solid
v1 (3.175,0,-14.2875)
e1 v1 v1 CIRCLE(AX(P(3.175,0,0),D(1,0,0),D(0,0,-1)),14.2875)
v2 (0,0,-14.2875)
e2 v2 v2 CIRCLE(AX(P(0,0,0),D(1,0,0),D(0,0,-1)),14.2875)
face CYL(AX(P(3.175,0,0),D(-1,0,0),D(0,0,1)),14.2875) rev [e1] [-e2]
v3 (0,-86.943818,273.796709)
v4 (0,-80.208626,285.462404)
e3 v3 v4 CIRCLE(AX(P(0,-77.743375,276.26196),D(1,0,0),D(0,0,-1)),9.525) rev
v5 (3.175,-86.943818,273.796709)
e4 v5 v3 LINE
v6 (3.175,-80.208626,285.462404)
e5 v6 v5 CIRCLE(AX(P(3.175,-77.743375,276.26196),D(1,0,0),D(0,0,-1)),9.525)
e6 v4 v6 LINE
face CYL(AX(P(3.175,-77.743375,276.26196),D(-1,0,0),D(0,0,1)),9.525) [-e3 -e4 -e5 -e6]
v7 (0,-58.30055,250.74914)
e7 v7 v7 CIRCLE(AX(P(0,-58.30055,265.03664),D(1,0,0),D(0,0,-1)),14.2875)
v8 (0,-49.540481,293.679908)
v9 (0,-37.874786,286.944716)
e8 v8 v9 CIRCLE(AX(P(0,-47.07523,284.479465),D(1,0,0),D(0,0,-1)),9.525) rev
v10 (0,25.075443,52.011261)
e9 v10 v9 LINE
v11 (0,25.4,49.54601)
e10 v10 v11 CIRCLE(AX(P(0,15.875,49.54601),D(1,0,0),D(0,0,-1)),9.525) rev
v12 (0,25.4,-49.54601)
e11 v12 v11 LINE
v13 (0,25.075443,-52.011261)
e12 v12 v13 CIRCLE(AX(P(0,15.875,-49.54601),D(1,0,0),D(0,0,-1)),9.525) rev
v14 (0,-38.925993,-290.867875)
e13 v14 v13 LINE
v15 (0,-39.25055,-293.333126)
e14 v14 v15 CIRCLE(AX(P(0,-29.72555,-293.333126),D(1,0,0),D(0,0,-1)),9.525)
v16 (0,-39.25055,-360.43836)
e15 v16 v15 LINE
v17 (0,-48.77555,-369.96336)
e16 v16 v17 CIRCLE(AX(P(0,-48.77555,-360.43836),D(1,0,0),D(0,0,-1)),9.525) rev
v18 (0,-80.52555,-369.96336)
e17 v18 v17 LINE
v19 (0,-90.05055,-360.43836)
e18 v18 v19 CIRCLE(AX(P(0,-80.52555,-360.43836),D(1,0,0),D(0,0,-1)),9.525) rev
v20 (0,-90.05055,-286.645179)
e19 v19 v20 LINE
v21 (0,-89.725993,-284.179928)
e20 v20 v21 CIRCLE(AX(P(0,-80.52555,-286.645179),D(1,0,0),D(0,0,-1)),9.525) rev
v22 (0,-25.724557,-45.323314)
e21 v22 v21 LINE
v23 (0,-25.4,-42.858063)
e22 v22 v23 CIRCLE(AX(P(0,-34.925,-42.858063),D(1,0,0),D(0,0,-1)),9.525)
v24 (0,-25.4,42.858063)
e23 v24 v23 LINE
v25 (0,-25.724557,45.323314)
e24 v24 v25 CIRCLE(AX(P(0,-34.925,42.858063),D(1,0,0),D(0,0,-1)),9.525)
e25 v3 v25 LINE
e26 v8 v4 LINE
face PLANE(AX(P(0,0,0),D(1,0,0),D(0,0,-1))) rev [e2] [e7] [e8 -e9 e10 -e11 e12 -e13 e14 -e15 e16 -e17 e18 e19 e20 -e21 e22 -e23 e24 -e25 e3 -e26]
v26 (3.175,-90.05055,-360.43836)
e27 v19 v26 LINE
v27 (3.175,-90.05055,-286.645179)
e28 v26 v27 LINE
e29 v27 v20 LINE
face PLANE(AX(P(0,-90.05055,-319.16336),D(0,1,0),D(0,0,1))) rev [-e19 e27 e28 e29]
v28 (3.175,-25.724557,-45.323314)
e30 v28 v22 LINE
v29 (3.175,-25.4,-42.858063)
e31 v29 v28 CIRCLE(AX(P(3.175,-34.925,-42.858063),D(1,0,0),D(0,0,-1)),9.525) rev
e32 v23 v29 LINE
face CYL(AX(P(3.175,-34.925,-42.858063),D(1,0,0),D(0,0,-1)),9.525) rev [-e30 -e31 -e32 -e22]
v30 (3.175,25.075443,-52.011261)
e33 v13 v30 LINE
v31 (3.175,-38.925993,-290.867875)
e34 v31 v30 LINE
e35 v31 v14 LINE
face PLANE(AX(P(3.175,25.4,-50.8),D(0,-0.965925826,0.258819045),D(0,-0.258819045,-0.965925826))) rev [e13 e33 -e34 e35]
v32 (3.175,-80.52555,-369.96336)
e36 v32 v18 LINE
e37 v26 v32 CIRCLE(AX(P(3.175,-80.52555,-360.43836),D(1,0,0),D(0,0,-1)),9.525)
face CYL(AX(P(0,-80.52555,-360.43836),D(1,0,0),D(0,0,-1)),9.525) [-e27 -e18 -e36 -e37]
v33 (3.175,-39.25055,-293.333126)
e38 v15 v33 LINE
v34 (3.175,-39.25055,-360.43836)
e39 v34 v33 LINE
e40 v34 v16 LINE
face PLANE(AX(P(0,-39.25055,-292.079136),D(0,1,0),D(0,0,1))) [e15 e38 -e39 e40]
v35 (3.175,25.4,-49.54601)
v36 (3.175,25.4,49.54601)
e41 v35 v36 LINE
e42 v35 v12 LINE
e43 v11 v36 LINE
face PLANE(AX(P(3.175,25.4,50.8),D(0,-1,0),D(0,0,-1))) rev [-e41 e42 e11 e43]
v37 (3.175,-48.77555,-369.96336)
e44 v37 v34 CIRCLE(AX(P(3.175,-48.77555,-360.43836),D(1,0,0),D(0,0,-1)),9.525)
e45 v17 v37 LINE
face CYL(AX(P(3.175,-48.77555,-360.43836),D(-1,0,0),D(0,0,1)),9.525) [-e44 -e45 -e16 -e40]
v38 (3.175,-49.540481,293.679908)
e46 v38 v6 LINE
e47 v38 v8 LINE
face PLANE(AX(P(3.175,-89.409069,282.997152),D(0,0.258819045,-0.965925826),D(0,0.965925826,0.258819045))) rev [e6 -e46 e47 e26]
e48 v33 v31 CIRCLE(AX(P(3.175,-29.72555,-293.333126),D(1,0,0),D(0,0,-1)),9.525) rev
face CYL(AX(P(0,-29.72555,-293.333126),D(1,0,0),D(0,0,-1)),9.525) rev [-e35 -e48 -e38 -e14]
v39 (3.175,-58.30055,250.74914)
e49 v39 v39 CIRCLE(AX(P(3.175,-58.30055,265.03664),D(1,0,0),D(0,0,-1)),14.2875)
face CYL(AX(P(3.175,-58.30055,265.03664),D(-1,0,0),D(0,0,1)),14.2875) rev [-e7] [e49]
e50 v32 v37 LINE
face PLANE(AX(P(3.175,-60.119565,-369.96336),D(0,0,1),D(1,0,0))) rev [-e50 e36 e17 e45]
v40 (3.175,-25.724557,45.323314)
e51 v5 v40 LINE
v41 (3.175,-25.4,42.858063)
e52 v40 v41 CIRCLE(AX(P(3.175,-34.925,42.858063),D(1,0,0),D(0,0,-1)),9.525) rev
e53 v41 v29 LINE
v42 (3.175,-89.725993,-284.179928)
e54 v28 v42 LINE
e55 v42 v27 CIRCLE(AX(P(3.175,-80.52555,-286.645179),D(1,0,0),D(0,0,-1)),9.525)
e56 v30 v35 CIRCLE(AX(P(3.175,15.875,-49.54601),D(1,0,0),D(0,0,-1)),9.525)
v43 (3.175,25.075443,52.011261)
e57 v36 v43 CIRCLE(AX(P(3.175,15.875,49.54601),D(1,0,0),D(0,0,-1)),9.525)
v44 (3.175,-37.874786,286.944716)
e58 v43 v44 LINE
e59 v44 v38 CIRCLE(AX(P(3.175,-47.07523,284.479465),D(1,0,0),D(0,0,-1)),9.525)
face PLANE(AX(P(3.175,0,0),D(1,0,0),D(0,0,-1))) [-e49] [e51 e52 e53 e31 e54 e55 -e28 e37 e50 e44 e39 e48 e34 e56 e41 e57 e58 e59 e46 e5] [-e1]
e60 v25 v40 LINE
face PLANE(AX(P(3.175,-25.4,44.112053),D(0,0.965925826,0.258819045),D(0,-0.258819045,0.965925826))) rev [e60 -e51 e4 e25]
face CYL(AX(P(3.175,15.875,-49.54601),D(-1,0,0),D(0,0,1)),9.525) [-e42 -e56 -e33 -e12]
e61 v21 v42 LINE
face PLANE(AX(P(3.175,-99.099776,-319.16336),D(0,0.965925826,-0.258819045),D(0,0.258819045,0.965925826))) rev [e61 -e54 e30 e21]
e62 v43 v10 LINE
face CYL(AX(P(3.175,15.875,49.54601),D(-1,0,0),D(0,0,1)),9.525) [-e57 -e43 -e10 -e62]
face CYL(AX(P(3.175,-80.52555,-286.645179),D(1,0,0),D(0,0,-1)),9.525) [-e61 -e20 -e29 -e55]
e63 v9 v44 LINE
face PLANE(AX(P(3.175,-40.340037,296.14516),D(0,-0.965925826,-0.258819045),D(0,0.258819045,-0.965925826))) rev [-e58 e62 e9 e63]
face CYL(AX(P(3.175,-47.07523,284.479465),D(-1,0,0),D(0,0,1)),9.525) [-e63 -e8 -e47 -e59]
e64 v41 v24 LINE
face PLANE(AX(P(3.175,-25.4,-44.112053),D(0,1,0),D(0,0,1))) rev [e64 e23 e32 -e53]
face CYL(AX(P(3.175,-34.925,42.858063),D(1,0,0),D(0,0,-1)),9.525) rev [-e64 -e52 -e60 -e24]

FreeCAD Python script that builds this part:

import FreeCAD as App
import Part
import Sketcher

V = App.Vector
Q = App.Units.Quantity


def edges_at(feature, points):
    """Names of the edges that pass closest to the given points."""
    edges = feature.Shape.Edges
    near = lambda p: min(range(len(edges)), key=lambda i: edges[i].distToShape(Part.Vertex(*p))[0])
    return sorted({f"Edge{near(p) + 1}" for p in points})

doc = App.newDocument("Part")
body = doc.addObject("PartDesign::Body", "Body")

sketch1 = body.newObject("Sketcher::SketchObject", "Sketch")
sketch1.AttachmentSupport = (doc.getObject("YZ_Plane"), [""])
sketch1.MapMode = "FlatFace"
sketch1.addGeometry(Part.LineSegment(V(25, -51, 0), V(25, 51, 0)), False)
sketch1.addGeometry(Part.LineSegment(V(25, 51, 0), V(-40, 296, 0)), False)
sketch1.addGeometry(Part.LineSegment(V(-40, 296, 0), V(-89, 283, 0)), False)
sketch1.addGeometry(Part.LineSegment(V(-89, 283, 0), V(-25, 44, 0)), False)
sketch1.addGeometry(Part.LineSegment(V(-25, 44, 0), V(-25, -44, 0)), False)
sketch1.addGeometry(Part.LineSegment(V(-25, -44, 0), V(-99, -319, 0)), False)
sketch1.addGeometry(Part.LineSegment(V(-99, -319, 0), V(-338, -319, 0)), False)
sketch1.addGeometry(Part.LineSegment(V(-338, -319, 0), V(-338, -370, 0)), False)
sketch1.addGeometry(Part.LineSegment(V(-338, -370, 0), V(-60, -370, 0)), False)
sketch1.addGeometry(Part.LineSegment(V(-60, -370, 0), V(25, -51, 0)), False)
sketch1.addGeometry(Part.Circle(V(-58, 265, 0), V(0, 0, 1), 14), False)
sketch1.addGeometry(Part.Circle(V(0, 0, 0), V(0, 0, 1), 14), False)
sketch1.addConstraint(Sketcher.Constraint("Coincident", 0, 2, 1, 1))
sketch1.addConstraint(Sketcher.Constraint("Coincident", 1, 2, 2, 1))
sketch1.addConstraint(Sketcher.Constraint("Coincident", 2, 2, 3, 1))
sketch1.addConstraint(Sketcher.Constraint("Coincident", 3, 2, 4, 1))
sketch1.addConstraint(Sketcher.Constraint("Coincident", 4, 2, 5, 1))
sketch1.addConstraint(Sketcher.Constraint("Coincident", 5, 2, 6, 1))
sketch1.addConstraint(Sketcher.Constraint("Coincident", 6, 2, 7, 1))
sketch1.addConstraint(Sketcher.Constraint("Coincident", 7, 2, 8, 1))
sketch1.addConstraint(Sketcher.Constraint("Coincident", 8, 2, 9, 1))
sketch1.addConstraint(Sketcher.Constraint("Coincident", 9, 2, 0, 1))
sketch1.addConstraint(Sketcher.Constraint("Vertical", 0))
sketch1.addConstraint(Sketcher.Constraint("Vertical", 4))
sketch1.addConstraint(Sketcher.Constraint("Horizontal", 6))
sketch1.addConstraint(Sketcher.Constraint("Vertical", 7))
sketch1.addConstraint(Sketcher.Constraint("Horizontal", 8))
sketch1.addConstraint(Sketcher.Constraint("Coincident", 11, 3, -1, 1))
sketch1.addConstraint(Sketcher.Constraint("Equal", 10, 11))
sketch1.addConstraint(Sketcher.Constraint("Perpendicular", 1, 2))
sketch1.addConstraint(Sketcher.Constraint("Perpendicular", 2, 3))
sketch1.addConstraint(Sketcher.Constraint("Parallel", 5, 9))
sketch1.addConstraint(Sketcher.Constraint("DistanceY", 0, 1, 0, 2, Q("4 in")))
sketch1.addConstraint(Sketcher.Constraint("DistanceY", 7, 2, 7, 1, Q("2 in")))
sketch1.addConstraint(Sketcher.Constraint("Distance", 1, Q("10 in")))
sketch1.addConstraint(Sketcher.Constraint("Distance", 2, Q("2 in")))
sketch1.addConstraint(Sketcher.Constraint("Diameter", 10, Q("1.125 in")))
sketch1.addConstraint(Sketcher.Constraint("DistanceX", -1, 1, 0, 2, Q("1 in")))
sketch1.addConstraint(Sketcher.Constraint("DistanceY", -1, 1, 0, 2, Q("2 in")))
sketch1.addConstraint(Sketcher.Constraint("DistanceX", 3, 2, -1, 1, Q("1 in")))
sketch1.addConstraint(Sketcher.Constraint("Angle", 1, Q("105 deg")))
sketch1.addConstraint(Sketcher.Constraint("Angle", 5, Q("-105 deg")))
sketch1.addConstraint(Sketcher.Constraint("DistanceY", 5, 2, 10, 3, Q("23 in")))
sketch1.addConstraint(Sketcher.Constraint("DistanceX", 6, 2, 6, 1, Q("238.600774 mm")))
sketch1.addConstraint(Sketcher.Constraint("DistanceX", 8, 1, 8, 2, Q("277.580985 mm")))
sketch1.addConstraint(Sketcher.Constraint("DistanceX", 10, 3, -1, 1, Q("58.30055 mm")))
sketch1.addConstraint(Sketcher.Constraint("DistanceY", -1, 1, 10, 3, Q("265.03664 mm")))
pad1 = body.newObject("PartDesign::Pad", "Pad")
pad1.Profile = sketch1
pad1.Length = Q("0.125 in")

sketch2 = body.newObject("Sketcher::SketchObject", "Sketch001")
sketch2.AttachmentSupport = (doc.getObject("YZ_Plane"), [""])
sketch2.MapMode = "FlatFace"
sketch2.AttachmentOffset = App.Placement(V(0, 0, 0.125 * 25.4), App.Rotation())
sketch2.addGeometry(Part.Circle(V(-312, -345, 0), V(0, 0, 1), 13), False)
sketch2.addConstraint(Sketcher.Constraint("Diameter", 0, Q("1 in")))
sketch2.addConstraint(Sketcher.Constraint("DistanceX", 0, 3, -1, 1, Q("312.30055 mm")))
sketch2.addConstraint(Sketcher.Constraint("DistanceY", 0, 3, -1, 1, Q("344.56336 mm")))
pocket1 = body.newObject("PartDesign::Pocket", "Pocket")
pocket1.Profile = sketch2
pocket1.Type = "ThroughAll"

sketch3 = body.newObject("Sketcher::SketchObject", "Sketch002")
sketch3.AttachmentSupport = (doc.getObject("YZ_Plane"), [""])
sketch3.MapMode = "FlatFace"
sketch3.AttachmentOffset = App.Placement(V(0, 0, 0.125 * 25.4), App.Rotation())
sketch3.addGeometry(Part.LineSegment(V(-90, -319, 0), V(-338, -319, 0)), False)
sketch3.addGeometry(Part.LineSegment(V(-338, -319, 0), V(-338, -370, 0)), False)
sketch3.addGeometry(Part.LineSegment(V(-338, -370, 0), V(-90, -370, 0)), False)
sketch3.addGeometry(Part.LineSegment(V(-90, -370, 0), V(-90, -319, 0)), False)
sketch3.addConstraint(Sketcher.Constraint("Coincident", 0, 2, 1, 1))
sketch3.addConstraint(Sketcher.Constraint("Coincident", 1, 2, 2, 1))
sketch3.addConstraint(Sketcher.Constraint("Coincident", 2, 2, 3, 1))
sketch3.addConstraint(Sketcher.Constraint("Coincident", 3, 2, 0, 1))
sketch3.addConstraint(Sketcher.Constraint("Horizontal", 0))
sketch3.addConstraint(Sketcher.Constraint("Vertical", 1))
sketch3.addConstraint(Sketcher.Constraint("Horizontal", 2))
sketch3.addConstraint(Sketcher.Constraint("Vertical", 3))
sketch3.addConstraint(Sketcher.Constraint("DistanceY", 1, 2, 1, 1, Q("2 in")))
sketch3.addConstraint(Sketcher.Constraint("DistanceX", 0, 2, 0, 1, Q("9.75 in")))
sketch3.addConstraint(Sketcher.Constraint("DistanceX", 0, 2, -1, 1, Q("337.70055 mm")))
sketch3.addConstraint(Sketcher.Constraint("DistanceY", 0, 2, -1, 1, Q("319.16336 mm")))
pocket2 = body.newObject("PartDesign::Pocket", "Pocket001")
pocket2.Profile = sketch3
pocket2.Type = "ThroughAll"

sketch4 = body.newObject("Sketcher::SketchObject", "Sketch003")
sketch4.AttachmentSupport = (doc.getObject("YZ_Plane"), [""])
sketch4.MapMode = "FlatFace"
sketch4.AttachmentOffset = App.Placement(V(0, 0, 0.125 * 25.4), App.Rotation())
sketch4.addGeometry(Part.LineSegment(V(-90, -243, 0), V(-115, -243, 0)), False)
sketch4.addGeometry(Part.LineSegment(V(-115, -243, 0), V(-115, -370, 0)), False)
sketch4.addGeometry(Part.LineSegment(V(-115, -370, 0), V(-90, -370, 0)), False)
sketch4.addGeometry(Part.LineSegment(V(-90, -370, 0), V(-90, -243, 0)), False)
sketch4.addConstraint(Sketcher.Constraint("Coincident", 0, 2, 1, 1))
sketch4.addConstraint(Sketcher.Constraint("Coincident", 1, 2, 2, 1))
sketch4.addConstraint(Sketcher.Constraint("Coincident", 2, 2, 3, 1))
sketch4.addConstraint(Sketcher.Constraint("Coincident", 3, 2, 0, 1))
sketch4.addConstraint(Sketcher.Constraint("Horizontal", 0))
sketch4.addConstraint(Sketcher.Constraint("Vertical", 1))
sketch4.addConstraint(Sketcher.Constraint("Horizontal", 2))
sketch4.addConstraint(Sketcher.Constraint("Vertical", 3))
sketch4.addConstraint(Sketcher.Constraint("DistanceX", 0, 2, 0, 1, Q("1 in")))
sketch4.addConstraint(Sketcher.Constraint("DistanceY", 1, 2, 1, 1, Q("5 in")))
sketch4.addConstraint(Sketcher.Constraint("DistanceX", 0, 2, -1, 1, Q("115.45055 mm")))
sketch4.addConstraint(Sketcher.Constraint("DistanceY", 0, 2, -1, 1, Q("242.96336 mm")))
pocket3 = body.newObject("PartDesign::Pocket", "Pocket002")
pocket3.Profile = sketch4
pocket3.Type = "ThroughAll"

sketch5 = body.newObject("Sketcher::SketchObject", "Sketch004")
sketch5.AttachmentSupport = (doc.getObject("YZ_Plane"), [""])
sketch5.MapMode = "FlatFace"
sketch5.AttachmentOffset = App.Placement(V(0, 0, 0.125 * 25.4), App.Rotation())
sketch5.addGeometry(Part.LineSegment(V(-39, -370, 0), V(-39, -292, 0)), False)
sketch5.addGeometry(Part.LineSegment(V(-39, -292, 0), V(-60, -370, 0)), False)
sketch5.addGeometry(Part.LineSegment(V(-60, -370, 0), V(-39, -370, 0)), False)
sketch5.addConstraint(Sketcher.Constraint("Coincident", 0, 2, 1, 1))
sketch5.addConstraint(Sketcher.Constraint("Coincident", 1, 2, 2, 1))
sketch5.addConstraint(Sketcher.Constraint("Coincident", 2, 2, 0, 1))
sketch5.addConstraint(Sketcher.Constraint("Vertical", 0))
sketch5.addConstraint(Sketcher.Constraint("Horizontal", 2))
sketch5.addConstraint(Sketcher.Constraint("Angle", 1, Q("-105 deg")))
sketch5.addConstraint(Sketcher.Constraint("Distance", 1, Q("80.631682 mm")))
sketch5.addConstraint(Sketcher.Constraint("DistanceX", 0, 2, -1, 1, Q("39.25055 mm")))
sketch5.addConstraint(Sketcher.Constraint("DistanceY", 1, 2, -1, 1, Q("369.96336 mm")))
pad2 = body.newObject("PartDesign::Pad", "Pad001")
pad2.Profile = sketch5
pad2.Length = Q("0.125 in")
pad2.Reversed = True
doc.recompute()

fillet = body.newObject("PartDesign::Fillet", "Fillet")
fillet.Base = (pad2, edges_at(pad2, [
    (1.587, 25.4, 50.8),
    (1.587, 25.4, -50.8),
    (1.587, -25.4, -44.112),
    (1.587, -25.4, 44.112),
    (1.587, -89.409, 282.997),
    (1.587, -40.34, 296.145),
    (1.587, -90.051, -369.963),
    (1.587, -90.051, -285.391),
    (1.587, -39.251, -292.079),
    (1.587, -39.251, -369.963),
]))
fillet.Radius = Q("0.375 in")

doc.recompute()
